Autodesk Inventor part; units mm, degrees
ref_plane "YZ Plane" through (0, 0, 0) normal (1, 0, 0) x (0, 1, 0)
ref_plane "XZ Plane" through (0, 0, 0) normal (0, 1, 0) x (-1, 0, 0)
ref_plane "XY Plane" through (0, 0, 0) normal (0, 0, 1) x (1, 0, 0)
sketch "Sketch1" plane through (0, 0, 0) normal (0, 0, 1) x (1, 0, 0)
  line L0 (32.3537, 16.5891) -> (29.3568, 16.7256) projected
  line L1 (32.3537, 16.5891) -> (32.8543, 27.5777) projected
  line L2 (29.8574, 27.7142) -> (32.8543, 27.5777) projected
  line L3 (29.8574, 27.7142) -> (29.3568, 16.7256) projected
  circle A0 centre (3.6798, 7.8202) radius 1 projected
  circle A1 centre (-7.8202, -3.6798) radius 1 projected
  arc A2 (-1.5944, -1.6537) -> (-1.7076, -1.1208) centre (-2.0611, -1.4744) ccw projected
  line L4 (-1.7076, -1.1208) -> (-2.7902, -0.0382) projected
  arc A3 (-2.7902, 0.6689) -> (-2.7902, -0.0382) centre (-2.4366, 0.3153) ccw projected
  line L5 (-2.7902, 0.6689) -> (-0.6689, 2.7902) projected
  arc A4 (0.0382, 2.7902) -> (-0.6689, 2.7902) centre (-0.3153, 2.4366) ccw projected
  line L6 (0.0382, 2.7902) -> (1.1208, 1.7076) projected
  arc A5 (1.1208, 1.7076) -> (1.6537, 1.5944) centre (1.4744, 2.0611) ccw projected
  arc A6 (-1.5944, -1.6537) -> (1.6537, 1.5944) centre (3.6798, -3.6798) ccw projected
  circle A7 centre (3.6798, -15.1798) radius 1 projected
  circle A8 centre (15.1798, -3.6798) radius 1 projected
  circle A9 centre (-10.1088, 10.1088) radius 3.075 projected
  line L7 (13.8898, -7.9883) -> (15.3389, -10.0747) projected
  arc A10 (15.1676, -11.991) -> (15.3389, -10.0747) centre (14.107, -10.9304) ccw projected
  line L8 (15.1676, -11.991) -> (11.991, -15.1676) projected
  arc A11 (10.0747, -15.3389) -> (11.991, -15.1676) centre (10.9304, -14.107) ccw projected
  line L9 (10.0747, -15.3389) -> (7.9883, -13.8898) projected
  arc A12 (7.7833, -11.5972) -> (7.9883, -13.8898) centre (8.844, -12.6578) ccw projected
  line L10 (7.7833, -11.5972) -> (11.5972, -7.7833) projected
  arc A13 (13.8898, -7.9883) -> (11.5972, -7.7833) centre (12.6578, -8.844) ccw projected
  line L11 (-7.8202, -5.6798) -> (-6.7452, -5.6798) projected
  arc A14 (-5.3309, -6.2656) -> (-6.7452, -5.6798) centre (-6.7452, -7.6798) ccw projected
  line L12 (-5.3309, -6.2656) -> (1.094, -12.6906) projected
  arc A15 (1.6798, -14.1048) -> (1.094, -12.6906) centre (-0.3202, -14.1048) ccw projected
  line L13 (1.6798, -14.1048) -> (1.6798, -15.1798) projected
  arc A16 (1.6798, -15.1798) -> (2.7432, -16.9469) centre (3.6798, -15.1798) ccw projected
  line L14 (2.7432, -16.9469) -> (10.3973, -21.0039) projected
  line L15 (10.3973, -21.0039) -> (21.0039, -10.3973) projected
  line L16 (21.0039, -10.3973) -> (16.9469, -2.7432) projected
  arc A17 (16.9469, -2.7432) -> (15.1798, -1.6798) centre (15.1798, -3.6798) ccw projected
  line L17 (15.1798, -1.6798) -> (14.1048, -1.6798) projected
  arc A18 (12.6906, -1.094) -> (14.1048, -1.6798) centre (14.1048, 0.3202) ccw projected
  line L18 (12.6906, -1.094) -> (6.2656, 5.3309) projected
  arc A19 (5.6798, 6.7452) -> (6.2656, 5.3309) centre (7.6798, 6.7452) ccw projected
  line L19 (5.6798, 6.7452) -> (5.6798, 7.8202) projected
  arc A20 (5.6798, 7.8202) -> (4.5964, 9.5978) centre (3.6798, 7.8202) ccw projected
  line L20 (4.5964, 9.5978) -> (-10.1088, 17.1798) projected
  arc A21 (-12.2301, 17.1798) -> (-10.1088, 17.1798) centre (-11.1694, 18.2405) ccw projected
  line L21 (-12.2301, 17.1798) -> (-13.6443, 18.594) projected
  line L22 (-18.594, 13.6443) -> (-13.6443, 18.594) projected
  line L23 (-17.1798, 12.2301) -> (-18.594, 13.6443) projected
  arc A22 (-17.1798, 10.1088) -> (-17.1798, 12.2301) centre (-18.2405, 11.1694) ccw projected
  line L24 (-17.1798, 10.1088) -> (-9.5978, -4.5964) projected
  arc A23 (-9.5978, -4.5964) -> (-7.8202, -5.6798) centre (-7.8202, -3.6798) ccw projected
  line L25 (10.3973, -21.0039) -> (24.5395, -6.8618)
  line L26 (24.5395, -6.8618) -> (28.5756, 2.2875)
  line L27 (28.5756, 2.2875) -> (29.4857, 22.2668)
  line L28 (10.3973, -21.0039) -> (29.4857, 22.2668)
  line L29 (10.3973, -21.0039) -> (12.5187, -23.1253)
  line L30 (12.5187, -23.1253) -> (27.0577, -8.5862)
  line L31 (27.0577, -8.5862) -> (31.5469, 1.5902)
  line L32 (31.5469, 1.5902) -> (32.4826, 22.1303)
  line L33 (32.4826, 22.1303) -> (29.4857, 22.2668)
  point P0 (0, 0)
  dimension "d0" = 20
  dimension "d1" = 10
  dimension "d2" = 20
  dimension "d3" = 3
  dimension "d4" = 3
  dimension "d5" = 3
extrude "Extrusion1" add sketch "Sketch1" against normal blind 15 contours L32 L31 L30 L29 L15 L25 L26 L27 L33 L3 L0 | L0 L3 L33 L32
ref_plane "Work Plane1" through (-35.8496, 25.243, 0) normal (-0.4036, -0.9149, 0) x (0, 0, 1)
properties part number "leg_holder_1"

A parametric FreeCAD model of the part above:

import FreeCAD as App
import Part
import Sketcher
from FreeCAD import Vector
Q = App.Units.Quantity


def add_polygon(sketch, points):
    """Adds a closed chain of lines whose ends are joined by coincident constraints."""
    first, n = sketch.GeometryCount, len(points)
    for a, b in zip(points, points[1:] + points[:1]):
        sketch.addGeometry(Part.LineSegment(App.Vector(*a, 0), App.Vector(*b, 0)), False)
    for i in range(n):
        sketch.addConstraint(Sketcher.Constraint("Coincident", first + i, 2, first + (i + 1) % n, 1))

doc = App.newDocument("Part")
body = doc.addObject("PartDesign::Body", "Body")

# Sketch on XY plane
sketch1 = body.newObject("Sketcher::SketchObject", "Sketch")
sketch1.AttachmentSupport = (doc.getObject("XY_Plane"), [""])
sketch1.MapMode = "FlatFace"
add_polygon(sketch1, [(31.5, 1.6), (32.5, 22.1), (29.5, 22.3), (28.6, 2.3), (24.5, -6.9), (21, -10.4), (10.4, -21), (12.5, -23.1), (27.1, -8.6)])  # lines 0-8
sketch1.addConstraint([
    Sketcher.Constraint("Perpendicular", 0, 1),
    Sketcher.Constraint("Perpendicular", 1, 2),
    Sketcher.Constraint("Parallel", 4, 5),
    Sketcher.Constraint("Perpendicular", 5, 6),
    Sketcher.Constraint("Perpendicular", 6, 7),
    Sketcher.Constraint("Parallel", 3, 8),
    Sketcher.Constraint("Equal", 1, 6),
    Sketcher.Constraint("Equal", 0, 7),
    Sketcher.Constraint("Distance", 1, 3.0),
    Sketcher.Constraint("Distance", 2, 20.0),
    Sketcher.Constraint("Distance", 3, 10.0),
    Sketcher.Constraint("Angle", 4, Q("-135.0002 deg")),
    Sketcher.Constraint("Distance", 4, 5.0),
    Sketcher.Constraint("Distance", 5, 15.0),
    Sketcher.Constraint("DistanceX", 2, 2, 1, 2, 0.91),
    Sketcher.Constraint("DistanceY", 8, 2, 0, 2, 20.54),
    Sketcher.Constraint("DistanceX", -1, 1, 4, 2, 21.004),
    Sketcher.Constraint("DistanceY", 5, 2, -1, 1, 21.004),
])
pad1 = body.newObject("PartDesign::Pad", "Pad")
pad1.Profile = sketch1
pad1.Length = 15
pad1.Reversed = True

doc.recompute()
